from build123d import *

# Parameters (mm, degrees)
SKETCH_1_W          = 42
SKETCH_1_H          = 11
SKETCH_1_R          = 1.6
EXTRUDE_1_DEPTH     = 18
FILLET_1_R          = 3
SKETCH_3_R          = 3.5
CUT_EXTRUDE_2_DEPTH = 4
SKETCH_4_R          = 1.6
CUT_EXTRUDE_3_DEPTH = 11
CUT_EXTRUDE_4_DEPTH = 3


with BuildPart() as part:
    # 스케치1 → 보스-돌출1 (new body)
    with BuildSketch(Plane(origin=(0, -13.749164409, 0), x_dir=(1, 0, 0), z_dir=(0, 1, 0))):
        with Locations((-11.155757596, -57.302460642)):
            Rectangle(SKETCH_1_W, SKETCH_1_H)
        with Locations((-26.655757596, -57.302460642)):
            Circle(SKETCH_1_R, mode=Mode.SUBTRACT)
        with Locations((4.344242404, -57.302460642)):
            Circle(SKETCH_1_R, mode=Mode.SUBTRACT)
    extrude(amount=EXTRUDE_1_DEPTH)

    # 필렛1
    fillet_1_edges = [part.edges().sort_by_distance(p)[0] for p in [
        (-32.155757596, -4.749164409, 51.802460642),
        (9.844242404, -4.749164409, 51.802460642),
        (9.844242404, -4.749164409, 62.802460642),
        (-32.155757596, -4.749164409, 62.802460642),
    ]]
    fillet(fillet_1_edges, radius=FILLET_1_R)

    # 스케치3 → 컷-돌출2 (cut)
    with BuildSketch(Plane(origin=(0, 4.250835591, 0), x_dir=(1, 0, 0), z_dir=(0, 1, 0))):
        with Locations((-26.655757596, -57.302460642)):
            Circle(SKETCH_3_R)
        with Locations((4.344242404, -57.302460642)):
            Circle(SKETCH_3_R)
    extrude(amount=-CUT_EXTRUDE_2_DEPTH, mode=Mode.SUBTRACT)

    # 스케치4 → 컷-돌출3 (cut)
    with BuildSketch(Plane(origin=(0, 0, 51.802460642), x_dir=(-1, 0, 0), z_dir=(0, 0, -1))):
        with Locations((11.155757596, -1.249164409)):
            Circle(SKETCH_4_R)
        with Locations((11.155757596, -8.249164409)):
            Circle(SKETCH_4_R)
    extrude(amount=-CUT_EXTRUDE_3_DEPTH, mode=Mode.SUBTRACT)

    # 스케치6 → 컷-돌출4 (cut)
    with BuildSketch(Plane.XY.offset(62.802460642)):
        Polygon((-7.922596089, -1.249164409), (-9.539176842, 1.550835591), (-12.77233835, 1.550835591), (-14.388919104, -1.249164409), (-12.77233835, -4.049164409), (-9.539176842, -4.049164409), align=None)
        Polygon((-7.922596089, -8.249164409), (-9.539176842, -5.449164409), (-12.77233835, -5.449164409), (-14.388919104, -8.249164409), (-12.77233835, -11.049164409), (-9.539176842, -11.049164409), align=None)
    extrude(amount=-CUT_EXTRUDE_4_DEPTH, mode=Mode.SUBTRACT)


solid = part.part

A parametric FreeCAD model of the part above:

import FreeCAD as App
import Part
import Sketcher
from FreeCAD import Vector
Q = App.Units.Quantity


def edges_at(feature, points):
    """Names of the edges that pass closest to the given points."""
    edges = feature.Shape.Edges
    near = lambda p: min(range(len(edges)), key=lambda i: edges[i].distToShape(Part.Vertex(*p))[0])
    return sorted({f"Edge{near(p) + 1}" for p in points})


def add_polygon(sketch, points):
    """Adds a closed chain of lines whose ends are joined by coincident constraints."""
    first, n = sketch.GeometryCount, len(points)
    for a, b in zip(points, points[1:] + points[:1]):
        sketch.addGeometry(Part.LineSegment(App.Vector(*a, 0), App.Vector(*b, 0)), False)
    for i in range(n):
        sketch.addConstraint(Sketcher.Constraint("Coincident", first + i, 2, first + (i + 1) % n, 1))

doc = App.newDocument("Part")
body = doc.addObject("PartDesign::Body", "Body")

# Sketch on XZ plane
sketch1 = doc.addObject("Sketcher::SketchObject", "Sketch")
body.addObject(sketch1)
sketch1.AttachmentSupport = (doc.XZ_Plane, [""])
sketch1.MapMode = "FlatFace"
sketch1.AttachmentOffset = App.Placement(Vector(0, 0, 13.749164), App.Rotation())
add_polygon(sketch1, [(-32.2, 51.8), (-32.2, 62.8), (9.8, 62.8), (9.8, 51.8)])  # lines 0-3
sketch1.addGeometry(Part.Circle(Vector(-26.7, 57.3, 0), Vector(0, 0, 1), 1.6), False)  # 4
sketch1.addGeometry(Part.Circle(Vector(4.3, 57.3, 0), Vector(0, 0, 1), 1.6), False)  # 5
sketch1.addConstraint(Sketcher.Constraint("Vertical", 0))
sketch1.addConstraint(Sketcher.Constraint("Horizontal", 1))
sketch1.addConstraint(Sketcher.Constraint("Vertical", 2))
sketch1.addConstraint(Sketcher.Constraint("Horizontal", 3))
sketch1.addConstraint(Sketcher.Constraint("Equal", 4, 5))
sketch1.addConstraint(Sketcher.Constraint("Horizontal", 4, 3, 5, 3))
sketch1.addConstraint(Sketcher.Constraint("Diameter", 4, 3.2))
sketch1.addConstraint(Sketcher.Constraint("DistanceX", 1, 1, 1, 2, 42.0))
sketch1.addConstraint(Sketcher.Constraint("DistanceY", 0, 1, 0, 2, 11.0))
sketch1.addConstraint(Sketcher.Constraint("DistanceX", 4, 3, 5, 3, 31.0))
sketch1.addConstraint(Sketcher.Constraint("DistanceX", 0, 2, 4, 3, 5.5))
sketch1.addConstraint(Sketcher.Constraint("DistanceY", 4, 3, 0, 2, 5.5))
sketch1.addConstraint(Sketcher.Constraint("DistanceY", -1, 1, 4, 3, 57.302461))
sketch1.addConstraint(Sketcher.Constraint("DistanceX", 4, 3, -1, 1, 26.655758))
pad1 = doc.addObject("PartDesign::Pad", "Pad")
body.addObject(pad1)
pad1.Profile = sketch1
pad1.Length = 18
pad1.Reversed = True
doc.recompute()

fillet = doc.addObject("PartDesign::Fillet", "Fillet")
body.addObject(fillet)
fillet.Base = (pad1, edges_at(pad1, [
    (-32.156, -4.749, 51.802),
    (9.844, -4.749, 51.802),
    (9.844, -4.749, 62.802),
    (-32.156, -4.749, 62.802),
]))
fillet.Radius = 3

# Sketch on XZ plane
sketch2 = doc.addObject("Sketcher::SketchObject", "Sketch001")
body.addObject(sketch2)
sketch2.AttachmentSupport = (doc.XZ_Plane, [""])
sketch2.MapMode = "FlatFace"
sketch2.AttachmentOffset = App.Placement(Vector(0, 0, -4.250836), App.Rotation())
sketch2.addGeometry(Part.Circle(Vector(-26.7, 57.3, 0), Vector(0, 0, 1), 3.5), False)
sketch2.addGeometry(Part.Circle(Vector(4.3, 57.3, 0), Vector(0, 0, 1), 3.5), False)
sketch2.addConstraint(Sketcher.Constraint("Equal", 0, 1))
sketch2.addConstraint(Sketcher.Constraint("Horizontal", 0, 3, 1, 3))
sketch2.addConstraint(Sketcher.Constraint("Diameter", 0, 7.0))
sketch2.addConstraint(Sketcher.Constraint("DistanceX", 0, 3, 1, 3, 31.0))
sketch2.addConstraint(Sketcher.Constraint("DistanceY", -1, 1, 0, 3, 57.302461))
sketch2.addConstraint(Sketcher.Constraint("DistanceX", 0, 3, -1, 1, 26.655758))
pocket1 = doc.addObject("PartDesign::Pocket", "Pocket")
body.addObject(pocket1)
pocket1.Profile = sketch2
pocket1.Length = 4
pocket1.Reversed = True

# Sketch on XY plane
sketch3 = doc.addObject("Sketcher::SketchObject", "Sketch002")
body.addObject(sketch3)
sketch3.AttachmentSupport = (doc.XY_Plane, [""])
sketch3.MapMode = "FlatFace"
sketch3.AttachmentOffset = App.Placement(Vector(0, 0, 51.802461), App.Rotation())
sketch3.addGeometry(Part.Circle(Vector(-11.2, -1.2, 0), Vector(0, 0, 1), 1.6), False)
sketch3.addGeometry(Part.Circle(Vector(-11.2, -8.2, 0), Vector(0, 0, 1), 1.6), False)
sketch3.addConstraint(Sketcher.Constraint("Equal", 0, 1))
sketch3.addConstraint(Sketcher.Constraint("Vertical", 0, 3, 1, 3))
sketch3.addConstraint(Sketcher.Constraint("Diameter", 0, 3.2))
sketch3.addConstraint(Sketcher.Constraint("DistanceY", 1, 3, 0, 3, 7.0))
sketch3.addConstraint(Sketcher.Constraint("DistanceX", 0, 3, -1, 1, 11.155758))
sketch3.addConstraint(Sketcher.Constraint("DistanceY", 0, 3, -1, 1, 1.249164))
pocket2 = doc.addObject("PartDesign::Pocket", "Pocket001")
body.addObject(pocket2)
pocket2.Profile = sketch3
pocket2.Length = 11
pocket2.Reversed = True

# Sketch on XY plane
sketch4 = doc.addObject("Sketcher::SketchObject", "Sketch003")
body.addObject(sketch4)
sketch4.AttachmentSupport = (doc.XY_Plane, [""])
sketch4.MapMode = "FlatFace"
sketch4.AttachmentOffset = App.Placement(Vector(0, 0, 62.802461), App.Rotation())
add_polygon(sketch4, [(-7.9, -1.2), (-9.5, 1.6), (-12.8, 1.6), (-14.4, -1.2), (-12.8, -4), (-9.5, -4)])  # lines 0-5
add_polygon(sketch4, [(-7.9, -8.2), (-9.5, -5.4), (-12.8, -5.4), (-14.4, -8.2), (-12.8, -11), (-9.5, -11)])  # lines 6-11
sketch4.addConstraint(Sketcher.Constraint("Horizontal", 1))
sketch4.addConstraint(Sketcher.Constraint("Horizontal", 4))
sketch4.addConstraint(Sketcher.Constraint("Horizontal", 7))
sketch4.addConstraint(Sketcher.Constraint("Horizontal", 10))
sketch4.addConstraint(Sketcher.Constraint("Parallel", 0, 3))
sketch4.addConstraint(Sketcher.Constraint("Parallel", 2, 5))
sketch4.addConstraint(Sketcher.Constraint("Parallel", 3, 6))
sketch4.addConstraint(Sketcher.Constraint("Parallel", 5, 8))
sketch4.addConstraint(Sketcher.Constraint("Parallel", 6, 9))
sketch4.addConstraint(Sketcher.Constraint("Parallel", 8, 11))
sketch4.addConstraint(Sketcher.Constraint("Horizontal", 2, 2, 5, 2))
sketch4.addConstraint(Sketcher.Constraint("Horizontal", 8, 2, 11, 2))
sketch4.addConstraint(Sketcher.Constraint("Vertical", 1, 2, 3, 2))
sketch4.addConstraint(Sketcher.Constraint("Vertical", 0, 2, 4, 2))
sketch4.addConstraint(Sketcher.Constraint("Vertical", 4, 2, 6, 2))
sketch4.addConstraint(Sketcher.Constraint("Vertical", 3, 2, 7, 2))
sketch4.addConstraint(Sketcher.Constraint("Vertical", 2, 2, 8, 2))
sketch4.addConstraint(Sketcher.Constraint("Vertical", 7, 2, 9, 2))
sketch4.addConstraint(Sketcher.Constraint("Angle", 0, Q("120 deg")))
sketch4.addConstraint(Sketcher.Constraint("DistanceY", 6, 2, 0, 2, 7.0))
sketch4.addConstraint(Sketcher.Constraint("DistanceY", 2, 2, 1, 2, 2.8))
sketch4.addConstraint(Sketcher.Constraint("DistanceX", 1, 2, 1, 1, 3.233162))
sketch4.addConstraint(Sketcher.Constraint("DistanceX", 1, 2, -1, 1, 12.772338))
sketch4.addConstraint(Sketcher.Constraint("DistanceY", -1, 1, 0, 2, 1.550836))
pocket3 = doc.addObject("PartDesign::Pocket", "Pocket002")
body.addObject(pocket3)
pocket3.Profile = sketch4
pocket3.Length = 3

doc.recompute()
